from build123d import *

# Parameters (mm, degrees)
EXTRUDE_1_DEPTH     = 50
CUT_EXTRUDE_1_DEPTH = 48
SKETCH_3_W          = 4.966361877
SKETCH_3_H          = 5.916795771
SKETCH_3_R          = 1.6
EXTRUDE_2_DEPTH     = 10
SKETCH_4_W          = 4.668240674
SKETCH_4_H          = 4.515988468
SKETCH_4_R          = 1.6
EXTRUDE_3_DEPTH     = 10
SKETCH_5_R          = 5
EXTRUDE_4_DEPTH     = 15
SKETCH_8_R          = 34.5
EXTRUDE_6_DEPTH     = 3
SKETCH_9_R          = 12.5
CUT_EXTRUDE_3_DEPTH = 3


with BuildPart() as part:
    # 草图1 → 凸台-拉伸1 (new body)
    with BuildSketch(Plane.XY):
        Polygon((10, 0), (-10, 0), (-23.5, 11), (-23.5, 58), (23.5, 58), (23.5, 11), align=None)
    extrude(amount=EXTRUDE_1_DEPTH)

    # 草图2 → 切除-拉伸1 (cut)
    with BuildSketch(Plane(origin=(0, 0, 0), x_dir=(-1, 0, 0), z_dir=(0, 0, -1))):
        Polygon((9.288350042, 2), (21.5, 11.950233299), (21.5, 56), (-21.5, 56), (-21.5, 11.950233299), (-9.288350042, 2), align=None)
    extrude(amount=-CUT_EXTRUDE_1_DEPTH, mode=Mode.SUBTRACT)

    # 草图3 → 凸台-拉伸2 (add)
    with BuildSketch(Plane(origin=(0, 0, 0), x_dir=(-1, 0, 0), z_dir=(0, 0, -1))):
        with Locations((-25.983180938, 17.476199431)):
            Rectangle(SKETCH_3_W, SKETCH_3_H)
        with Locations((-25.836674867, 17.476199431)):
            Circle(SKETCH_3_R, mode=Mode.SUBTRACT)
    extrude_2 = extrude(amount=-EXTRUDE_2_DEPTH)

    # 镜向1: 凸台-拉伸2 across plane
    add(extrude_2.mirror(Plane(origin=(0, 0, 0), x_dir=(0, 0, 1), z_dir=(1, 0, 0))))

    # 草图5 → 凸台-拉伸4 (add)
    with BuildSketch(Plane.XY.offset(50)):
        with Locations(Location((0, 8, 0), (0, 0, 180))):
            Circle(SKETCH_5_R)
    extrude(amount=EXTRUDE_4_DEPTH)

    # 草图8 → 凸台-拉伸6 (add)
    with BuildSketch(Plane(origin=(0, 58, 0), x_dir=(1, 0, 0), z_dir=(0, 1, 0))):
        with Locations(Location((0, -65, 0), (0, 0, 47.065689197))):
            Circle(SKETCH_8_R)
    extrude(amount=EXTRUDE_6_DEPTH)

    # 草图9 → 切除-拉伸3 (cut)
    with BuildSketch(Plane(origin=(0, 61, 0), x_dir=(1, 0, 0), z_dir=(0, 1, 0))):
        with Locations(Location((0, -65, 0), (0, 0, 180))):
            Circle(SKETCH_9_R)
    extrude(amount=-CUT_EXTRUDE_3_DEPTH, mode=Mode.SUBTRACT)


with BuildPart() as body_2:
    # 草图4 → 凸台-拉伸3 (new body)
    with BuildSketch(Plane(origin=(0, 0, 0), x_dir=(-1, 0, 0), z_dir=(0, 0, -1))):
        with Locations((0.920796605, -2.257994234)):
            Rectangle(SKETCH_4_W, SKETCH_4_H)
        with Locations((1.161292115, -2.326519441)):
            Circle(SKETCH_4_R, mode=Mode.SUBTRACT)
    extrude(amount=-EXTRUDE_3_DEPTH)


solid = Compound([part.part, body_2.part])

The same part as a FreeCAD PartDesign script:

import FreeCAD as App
import Part
import Sketcher

V = App.Vector


def add_polygon(sketch, points):
    """Adds a closed chain of lines whose ends are joined by coincident constraints."""
    first, n = sketch.GeometryCount, len(points)
    for a, b in zip(points, points[1:] + points[:1]):
        sketch.addGeometry(Part.LineSegment(App.Vector(*a, 0), App.Vector(*b, 0)), False)
    for i in range(n):
        sketch.addConstraint(Sketcher.Constraint("Coincident", first + i, 2, first + (i + 1) % n, 1))

doc = App.newDocument("Part")
body = doc.addObject("PartDesign::Body", "Body")

sketch1 = body.newObject("Sketcher::SketchObject", "Sketch")
sketch1.AttachmentSupport = (doc.getObject("XY_Plane"), [""])
sketch1.MapMode = "FlatFace"
add_polygon(sketch1, [(-10, 0), (10, 0), (23.5, 11), (23.5, 58), (-23.5, 58), (-23.5, 11)])
sketch1.addConstraint([
    Sketcher.Constraint("Horizontal", 0),
    Sketcher.Constraint("Vertical", 2),
    Sketcher.Constraint("Horizontal", 3),
    Sketcher.Constraint("Vertical", 4),
    Sketcher.Constraint("Symmetric", 0, 2, 5, 2, -1, 1),
    Sketcher.Constraint("Symmetric", 1, 2, 4, 2, -2),
    Sketcher.Constraint("Equal", 3, 2),
    Sketcher.Constraint("DistanceX", 0, 1, 0, 2, 20.0),
    Sketcher.Constraint("DistanceX", 3, 2, 3, 1, 47.0),
    Sketcher.Constraint("DistanceY", -1, 1, 1, 2, 11.0),
])
pad1 = body.newObject("PartDesign::Pad", "Pad")
pad1.Profile = sketch1
pad1.Length = 50

sketch2 = body.newObject("Sketcher::SketchObject", "Sketch001")
sketch2.AttachmentSupport = (doc.getObject("XY_Plane"), [""])
sketch2.MapMode = "FlatFace"
add_polygon(sketch2, [(-9.28835, 2), (-21.5, 11.950233), (-21.5, 56), (21.5, 56), (21.5, 11.950233), (9.28835, 2)])
sketch2.addConstraint([
    Sketcher.Constraint("Vertical", 1),
    Sketcher.Constraint("Horizontal", 2),
    Sketcher.Constraint("Vertical", 3),
    Sketcher.Constraint("Horizontal", 5),
    Sketcher.Constraint("Symmetric", 0, 2, 3, 2, -2),
    Sketcher.Constraint("Equal", 0, 4),
    Sketcher.Constraint("DistanceX", 2, 1, 2, 2, 43.0),
    Sketcher.Constraint("DistanceY", -1, 1, 1, 2, 56.0),
    Sketcher.Constraint("DistanceY", -1, 1, 4, 2, 2.0),
    Sketcher.Constraint("DistanceX", 5, 2, 5, 1, 18.5767),
    Sketcher.Constraint("Distance", 0, 15.752192),
])
pocket1 = body.newObject("PartDesign::Pocket", "Pocket")
pocket1.Profile = sketch2
pocket1.Length = 48
pocket1.Reversed = True

sketch3 = body.newObject("Sketcher::SketchObject", "Sketch002")
sketch3.AttachmentSupport = (doc.getObject("XY_Plane"), [""])
sketch3.MapMode = "FlatFace"
add_polygon(sketch3, [(28.466362, 20.434597), (28.466362, 14.517802), (23.5, 14.517802), (23.5, 20.434597)])
sketch3.addGeometry(Part.Circle(V(25.836675, 17.476199, 0), V(0, 0, 1), 1.6), False)
sketch3.addConstraint([
    Sketcher.Constraint("Vertical", 0),
    Sketcher.Constraint("Horizontal", 1),
    Sketcher.Constraint("Vertical", 2),
    Sketcher.Constraint("Horizontal", 3),
    Sketcher.Constraint("Diameter", 4, 3.2),
    Sketcher.Constraint("DistanceX", -1, 1, 1, 2, 23.5),
    Sketcher.Constraint("DistanceX", 1, 2, 1, 1, 4.966362),
    Sketcher.Constraint("DistanceY", -1, 1, 4, 3, 17.476199),
    Sketcher.Constraint("DistanceY", -1, 1, 0, 2, 14.517802),
    Sketcher.Constraint("DistanceY", 0, 2, 0, 1, 5.916796),
    Sketcher.Constraint("DistanceX", -1, 1, 4, 3, 25.836675),
])
pad2 = body.newObject("PartDesign::Pad", "Pad001")
pad2.Profile = sketch3
pad2.Length = 10
doc.recompute()

mirrored = body.newObject("PartDesign::Mirrored", "Mirrored")
mirrored.Originals = [pad2]
mirrored.MirrorPlane = (doc.getObject("YZ_Plane"), [""])
body.Tip = mirrored

sketch4 = body.newObject("Sketcher::SketchObject", "Sketch003")
sketch4.AttachmentSupport = (doc.getObject("XY_Plane"), [""])
sketch4.MapMode = "FlatFace"
sketch4.AttachmentOffset = App.Placement(V(0, 0, 50), App.Rotation())
sketch4.addGeometry(Part.Circle(V(0, 8, 0), V(0, 0, 1), 5), False)
sketch4.addConstraint([
    Sketcher.Constraint("PointOnObject", 0, 3, -2),
    Sketcher.Constraint("Diameter", 0, 10.0),
    Sketcher.Constraint("DistanceY", -1, 1, 0, 3, 8.0),
])
pad3 = body.newObject("PartDesign::Pad", "Pad002")
pad3.Profile = sketch4
pad3.Length = 15

sketch5 = body.newObject("Sketcher::SketchObject", "Sketch004")
sketch5.AttachmentSupport = (doc.getObject("XZ_Plane"), [""])
sketch5.MapMode = "FlatFace"
sketch5.AttachmentOffset = App.Placement(V(0, 0, -58), App.Rotation())
sketch5.addGeometry(Part.Circle(V(0, 65, 0), V(0, 0, 1), 34.5), False)
sketch5.addConstraint([
    Sketcher.Constraint("PointOnObject", 0, 3, -2),
    Sketcher.Constraint("Diameter", 0, 69.0),
    Sketcher.Constraint("DistanceY", -1, 1, 0, 3, 65.0),
])
pad4 = body.newObject("PartDesign::Pad", "Pad003")
pad4.Profile = sketch5
pad4.Length = 3
pad4.Reversed = True

sketch6 = body.newObject("Sketcher::SketchObject", "Sketch005")
sketch6.AttachmentSupport = (doc.getObject("XZ_Plane"), [""])
sketch6.MapMode = "FlatFace"
sketch6.AttachmentOffset = App.Placement(V(0, 0, -61), App.Rotation())
sketch6.addGeometry(Part.Circle(V(0, 65, 0), V(0, 0, 1), 12.5), False)
sketch6.addConstraint([
    Sketcher.Constraint("PointOnObject", 0, 3, -2),
    Sketcher.Constraint("Diameter", 0, 25.0),
    Sketcher.Constraint("DistanceY", -1, 1, 0, 3, 65.0),
])
pocket2 = body.newObject("PartDesign::Pocket", "Pocket001")
pocket2.Profile = sketch6
pocket2.Length = 3
pocket2.Reversed = True
body2 = doc.addObject("PartDesign::Body", "Body001")

sketch7 = body2.newObject("Sketcher::SketchObject", "Sketch006")
sketch7.AttachmentSupport = (doc.getObject("XY_Plane001"), [""])
sketch7.MapMode = "FlatFace"
add_polygon(sketch7, [(1.413324, 0), (1.413324, -4.515988), (-3.254917, -4.515988), (-3.254917, 0)])
sketch7.addGeometry(Part.Circle(V(-1.161292, -2.326519, 0), V(0, 0, 1), 1.6), False)
sketch7.addConstraint([
    Sketcher.Constraint("Vertical", 0),
    Sketcher.Constraint("Horizontal", 1),
    Sketcher.Constraint("Vertical", 2),
    Sketcher.Constraint("Horizontal", 3),
    Sketcher.Constraint("PointOnObject", 2, 2, -1),
    Sketcher.Constraint("Diameter", 4, 3.2),
    Sketcher.Constraint("DistanceX", 1, 2, 1, 1, 4.668241),
    Sketcher.Constraint("DistanceY", 0, 2, 0, 1, 4.515988),
    Sketcher.Constraint("DistanceY", 4, 3, -1, 1, 2.326519),
    Sketcher.Constraint("DistanceX", 4, 3, -1, 1, 1.161292),
    Sketcher.Constraint("DistanceX", -1, 1, 0, 2, 1.413324),
])
pad5 = body2.newObject("PartDesign::Pad", "Pad004")
pad5.Profile = sketch7
pad5.Length = 10

doc.recompute()
